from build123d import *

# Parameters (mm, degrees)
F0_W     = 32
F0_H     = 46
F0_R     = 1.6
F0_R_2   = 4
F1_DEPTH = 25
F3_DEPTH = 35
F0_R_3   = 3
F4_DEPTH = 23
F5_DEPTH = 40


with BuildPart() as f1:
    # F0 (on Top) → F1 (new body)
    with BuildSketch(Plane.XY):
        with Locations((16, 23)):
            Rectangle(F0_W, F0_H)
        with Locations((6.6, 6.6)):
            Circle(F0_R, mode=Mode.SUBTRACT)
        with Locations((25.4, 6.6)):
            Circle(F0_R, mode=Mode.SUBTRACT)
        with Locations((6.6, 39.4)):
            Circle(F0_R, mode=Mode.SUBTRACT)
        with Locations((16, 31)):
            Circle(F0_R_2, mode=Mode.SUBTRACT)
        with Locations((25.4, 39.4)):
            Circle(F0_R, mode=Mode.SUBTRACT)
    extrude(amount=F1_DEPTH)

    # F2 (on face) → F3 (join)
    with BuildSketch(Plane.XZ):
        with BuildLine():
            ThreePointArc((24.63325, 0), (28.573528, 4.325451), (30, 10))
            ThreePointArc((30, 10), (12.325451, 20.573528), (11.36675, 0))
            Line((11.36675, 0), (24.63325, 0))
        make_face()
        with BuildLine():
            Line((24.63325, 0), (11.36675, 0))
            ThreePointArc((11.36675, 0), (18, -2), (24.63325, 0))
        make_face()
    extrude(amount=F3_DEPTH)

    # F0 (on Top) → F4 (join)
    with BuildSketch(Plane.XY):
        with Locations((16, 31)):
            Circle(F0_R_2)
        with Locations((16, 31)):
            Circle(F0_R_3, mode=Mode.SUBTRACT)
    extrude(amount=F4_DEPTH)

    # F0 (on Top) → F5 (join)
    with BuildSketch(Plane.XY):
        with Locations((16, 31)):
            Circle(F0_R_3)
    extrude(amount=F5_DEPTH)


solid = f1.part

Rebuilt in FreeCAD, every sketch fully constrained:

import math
import FreeCAD as App
import Part
import Sketcher
from FreeCAD import Vector

doc = App.newDocument("Part")
body = doc.addObject("PartDesign::Body", "Body")

# Sketch on XY plane
sketch1 = body.newObject("Sketcher::SketchObject", "Sketch")
sketch1.AttachmentSupport = (doc.getObject("XY_Plane"), [""])
sketch1.MapMode = "FlatFace"
sketch1.addGeometry([
    Part.LineSegment(Vector(0, 46, 0), Vector(0, 0, 0)),  # 0
    Part.LineSegment(Vector(0, 0, 0), Vector(32, 0, 0)),  # 1
    Part.LineSegment(Vector(32, 0, 0), Vector(32, 46, 0)),  # 2
    Part.LineSegment(Vector(32, 46, 0), Vector(0, 46, 0)),  # 3
    Part.Circle(Vector(6.6, 6.6, 0), Vector(0, 0, 1), 1.6),  # 4
    Part.Circle(Vector(25.4, 6.6, 0), Vector(0, 0, 1), 1.6),  # 5
    Part.Circle(Vector(6.6, 39.4, 0), Vector(0, 0, 1), 1.6),  # 6
    Part.Circle(Vector(16, 31, 0), Vector(0, 0, 1), 4),  # 7
    Part.Circle(Vector(25.4, 39.4, 0), Vector(0, 0, 1), 1.6),  # 8
], False)
sketch1.addConstraint([
    Sketcher.Constraint("Coincident", 0, 2, 1, 1),
    Sketcher.Constraint("Coincident", 1, 2, 2, 1),
    Sketcher.Constraint("Coincident", 2, 2, 3, 1),
    Sketcher.Constraint("Coincident", 3, 2, 0, 1),
    Sketcher.Constraint("Vertical", 0),
    Sketcher.Constraint("Horizontal", 1),
    Sketcher.Constraint("Vertical", 2),
    Sketcher.Constraint("Horizontal", 3),
    Sketcher.Constraint("Coincident", 0, 2, -1, 1),
    Sketcher.Constraint("Equal", 4, 5),
    Sketcher.Constraint("Equal", 5, 6),
    Sketcher.Constraint("Equal", 6, 8),
    Sketcher.Constraint("Horizontal", 4, 3, 5, 3),
    Sketcher.Constraint("Horizontal", 6, 3, 8, 3),
    Sketcher.Constraint("Vertical", 4, 3, 6, 3),
    Sketcher.Constraint("Vertical", 5, 3, 8, 3),
    Sketcher.Constraint("Diameter", 7, 8.0),
    Sketcher.Constraint("Diameter", 4, 3.2),
    Sketcher.Constraint("DistanceX", 1, 1, 1, 2, 32.0),
    Sketcher.Constraint("DistanceY", 0, 2, 0, 1, 46.0),
    Sketcher.Constraint("DistanceX", -1, 1, 7, 3, 16.0),
    Sketcher.Constraint("DistanceY", -1, 1, 7, 3, 31.0),
    Sketcher.Constraint("DistanceX", -1, 1, 4, 3, 6.6),
    Sketcher.Constraint("DistanceY", -1, 1, 4, 3, 6.6),
    Sketcher.Constraint("DistanceX", -1, 1, 5, 3, 25.4),
    Sketcher.Constraint("DistanceY", -1, 1, 6, 3, 39.4),
])
pad1 = body.newObject("PartDesign::Pad", "Pad")
pad1.Profile = sketch1
pad1.Length = 25

# Sketch on XZ plane
sketch2 = body.newObject("Sketcher::SketchObject", "Sketch001")
sketch2.AttachmentSupport = (doc.getObject("XZ_Plane"), [""])
sketch2.MapMode = "FlatFace"
sketch2.addGeometry([
    Part.ArcOfCircle(Part.Circle(Vector(18, 10, 0), Vector(0, 0, 1), 12), math.radians(-56), math.radians(0)),
    Part.ArcOfCircle(Part.Circle(Vector(18, 10, 0), Vector(0, 0, 1), 12), math.radians(0), math.radians(236)),
    Part.ArcOfCircle(Part.Circle(Vector(18, 10, 0), Vector(0, 0, 1), 12), math.radians(-124), math.radians(-56)),
], False)
sketch2.addConstraint([
    Sketcher.Constraint("Tangent", 0, 2, 1, 1),
    Sketcher.Constraint("Tangent", 1, 2, 2, 1),
    Sketcher.Constraint("Tangent", 2, 2, 0, 1),
    Sketcher.Constraint("PointOnObject", 1, 2, -1),
    Sketcher.Constraint("PointOnObject", 2, 2, -1),
    Sketcher.Constraint("Horizontal", 2, 3, 0, 2),
    Sketcher.Constraint("Radius", 0, 12.000001),
    Sketcher.Constraint("DistanceX", -1, 1, 0, 3, 17.999999),
    Sketcher.Constraint("DistanceY", -1, 1, 0, 3, 10.0),
])
pad2 = body.newObject("PartDesign::Pad", "Pad001")
pad2.Profile = sketch2
pad2.Length = 35

# Sketch on XY plane
sketch3 = body.newObject("Sketcher::SketchObject", "Sketch002")
sketch3.AttachmentSupport = (doc.getObject("XY_Plane"), [""])
sketch3.MapMode = "FlatFace"
sketch3.addGeometry([
    Part.Circle(Vector(16, 31, 0), Vector(0, 0, 1), 4),
    Part.Circle(Vector(16, 31, 0), Vector(0, 0, 1), 3),
], False)
sketch3.addConstraint([
    Sketcher.Constraint("Coincident", 1, 3, 0, 3),
    Sketcher.Constraint("Diameter", 0, 8.0),
    Sketcher.Constraint("Diameter", 1, 6.0),
    Sketcher.Constraint("DistanceX", -1, 1, 0, 3, 16.0),
    Sketcher.Constraint("DistanceY", -1, 1, 0, 3, 31.0),
])
pad3 = body.newObject("PartDesign::Pad", "Pad002")
pad3.Profile = sketch3
pad3.Length = 23

# Sketch on XY plane
sketch4 = body.newObject("Sketcher::SketchObject", "Sketch003")
sketch4.AttachmentSupport = (doc.getObject("XY_Plane"), [""])
sketch4.MapMode = "FlatFace"
sketch4.addGeometry(Part.Circle(Vector(16, 31, 0), Vector(0, 0, 1), 3), False)
sketch4.addConstraint([
    Sketcher.Constraint("Diameter", 0, 6.0),
    Sketcher.Constraint("DistanceX", -1, 1, 0, 3, 16.0),
    Sketcher.Constraint("DistanceY", -1, 1, 0, 3, 31.0),
])
pad4 = body.newObject("PartDesign::Pad", "Pad003")
pad4.Profile = sketch4
pad4.Length = 40

doc.recompute()
